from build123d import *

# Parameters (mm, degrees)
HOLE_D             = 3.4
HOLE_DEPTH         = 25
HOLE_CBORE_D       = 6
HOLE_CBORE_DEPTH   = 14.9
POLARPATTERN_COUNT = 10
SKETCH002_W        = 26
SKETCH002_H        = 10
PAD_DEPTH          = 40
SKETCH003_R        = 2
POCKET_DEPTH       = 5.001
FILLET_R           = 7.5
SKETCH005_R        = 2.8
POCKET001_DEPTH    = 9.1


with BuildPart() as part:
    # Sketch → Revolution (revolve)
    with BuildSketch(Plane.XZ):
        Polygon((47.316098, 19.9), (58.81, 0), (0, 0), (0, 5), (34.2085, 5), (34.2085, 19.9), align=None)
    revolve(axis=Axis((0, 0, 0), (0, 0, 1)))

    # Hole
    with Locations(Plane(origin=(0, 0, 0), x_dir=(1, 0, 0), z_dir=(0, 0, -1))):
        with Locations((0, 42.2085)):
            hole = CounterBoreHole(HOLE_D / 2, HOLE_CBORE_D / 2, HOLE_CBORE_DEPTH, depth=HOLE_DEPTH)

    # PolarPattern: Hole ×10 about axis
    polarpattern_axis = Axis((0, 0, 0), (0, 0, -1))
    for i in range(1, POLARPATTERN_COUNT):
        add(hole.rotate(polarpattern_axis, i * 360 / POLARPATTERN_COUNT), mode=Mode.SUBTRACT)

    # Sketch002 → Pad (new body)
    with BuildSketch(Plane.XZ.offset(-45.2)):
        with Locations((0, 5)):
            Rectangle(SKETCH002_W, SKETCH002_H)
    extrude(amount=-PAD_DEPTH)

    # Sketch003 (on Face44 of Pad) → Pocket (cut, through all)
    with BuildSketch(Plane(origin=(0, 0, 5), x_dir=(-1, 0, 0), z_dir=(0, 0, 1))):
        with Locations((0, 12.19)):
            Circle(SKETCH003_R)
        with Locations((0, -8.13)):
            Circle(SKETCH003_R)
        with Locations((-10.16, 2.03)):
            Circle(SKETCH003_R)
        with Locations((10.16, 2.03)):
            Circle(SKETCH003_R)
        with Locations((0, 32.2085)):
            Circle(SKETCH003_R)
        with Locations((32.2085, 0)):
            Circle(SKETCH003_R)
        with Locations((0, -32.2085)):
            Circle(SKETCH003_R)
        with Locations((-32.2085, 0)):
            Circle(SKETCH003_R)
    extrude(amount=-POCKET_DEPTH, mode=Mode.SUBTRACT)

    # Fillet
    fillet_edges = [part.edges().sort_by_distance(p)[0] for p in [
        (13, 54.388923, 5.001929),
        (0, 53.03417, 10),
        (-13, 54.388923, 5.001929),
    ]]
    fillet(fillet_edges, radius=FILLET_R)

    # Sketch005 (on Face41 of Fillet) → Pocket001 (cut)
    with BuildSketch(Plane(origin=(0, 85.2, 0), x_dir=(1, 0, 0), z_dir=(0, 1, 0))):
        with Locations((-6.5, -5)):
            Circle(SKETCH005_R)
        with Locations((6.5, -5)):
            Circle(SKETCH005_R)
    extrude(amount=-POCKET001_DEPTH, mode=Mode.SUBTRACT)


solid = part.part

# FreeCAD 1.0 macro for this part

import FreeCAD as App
import Part
import Sketcher
Q = App.Units.Quantity


def edges_at(feature, points):
    """Names of the edges that pass closest to the given points."""
    edges = feature.Shape.Edges
    near = lambda p: min(range(len(edges)), key=lambda i: edges[i].distToShape(Part.Vertex(*p))[0])
    return sorted({f"Edge{near(p) + 1}" for p in points})

doc = App.newDocument("Part")
params = doc.addObject("Spreadsheet::Sheet", "Params")
for row, (alias, value) in enumerate([
    ("sketch1_height", "5 mm"),
    ("sketch1_height2", "14.9 mm"),
    ("sketch1_width", "58.81 mm"),
    ("revolution_angle", "360 deg"),
    ("sketch2_diameter", "3.4 mm"),
    ("hole_diameter", "3.4 mm"),
    ("hole_depth", "25 mm"),
    ("hole_cbore_diameter", "6 mm"),
    ("hole_cbore_depth", "14.9 mm"),
    ("sketch3_width", "26 mm"),
    ("sketch3_height", "10 mm"),
    ("pad1_length", "40 mm"),
    ("sketch4_diameter", "4 mm"),
    ("fillet_radius", "7.5 mm"),
    ("sketch5_diameter", "5.6 mm"),
    ("pocket2_length", "9.1 mm"),
], start=1):
    params.set(f"A{row}", alias)
    params.set(f"B{row}", "=" + value)
    params.setAlias(f"B{row}", alias)

body = doc.addObject("PartDesign::Body", "Body")

# Sketch on XZ plane
sketch1 = body.newObject("Sketcher::SketchObject", "Sketch")
sketch1.AttachmentSupport = (doc.getObject("XZ_Plane"), [""])
sketch1.MapMode = "FlatFace"
sketch1.addGeometry(Part.LineSegment(App.Vector(59, 0, 0), App.Vector(47, 20, 0)), False)
sketch1.addGeometry(Part.LineSegment(App.Vector(47, 20, 0), App.Vector(34, 20, 0)), False)
sketch1.addGeometry(Part.LineSegment(App.Vector(34, 20, 0), App.Vector(34, 5, 0)), False)
sketch1.addGeometry(Part.LineSegment(App.Vector(34, 5, 0), App.Vector(0, 5, 0)), False)
sketch1.addGeometry(Part.LineSegment(App.Vector(0, 5, 0), App.Vector(0, 0, 0)), False)
sketch1.addGeometry(Part.LineSegment(App.Vector(0, 0, 0), App.Vector(59, 0, 0)), False)
sketch1.addConstraint(Sketcher.Constraint("Coincident", 0, 2, 1, 1))
sketch1.addConstraint(Sketcher.Constraint("Coincident", 1, 2, 2, 1))
sketch1.addConstraint(Sketcher.Constraint("Coincident", 2, 2, 3, 1))
sketch1.addConstraint(Sketcher.Constraint("Coincident", 3, 2, 4, 1))
sketch1.addConstraint(Sketcher.Constraint("Coincident", 4, 2, 5, 1))
sketch1.addConstraint(Sketcher.Constraint("Coincident", 5, 2, 0, 1))
sketch1.addConstraint(Sketcher.Constraint("Horizontal", 1))
sketch1.addConstraint(Sketcher.Constraint("Vertical", 2))
sketch1.addConstraint(Sketcher.Constraint("Horizontal", 3))
sketch1.addConstraint(Sketcher.Constraint("Vertical", 4))
sketch1.addConstraint(Sketcher.Constraint("Horizontal", 5))
sketch1.addConstraint(Sketcher.Constraint("Coincident", 4, 2, -1, 1))
sketch1.addConstraint(Sketcher.Constraint("DistanceY", 4, 2, 4, 1, Q("5 mm")))
sketch1.addConstraint(Sketcher.Constraint("DistanceY", 2, 2, 2, 1, Q("14.9 mm")))
sketch1.addConstraint(Sketcher.Constraint("DistanceX", 5, 1, 5, 2, Q("58.81 mm")))
sketch1.addConstraint(Sketcher.Constraint("Angle", 0, Q("120.010001 deg")))
sketch1.addConstraint(Sketcher.Constraint("DistanceX", 3, 2, 3, 1, Q("34.2085 mm")))
sketch1.setExpression("Constraints[12]", "Params.sketch1_height")
sketch1.setExpression("Constraints[13]", "Params.sketch1_height2")
sketch1.setExpression("Constraints[14]", "Params.sketch1_width")
revolution = body.newObject("PartDesign::Revolution", "Revolution")
revolution.Profile = sketch1
revolution.ReferenceAxis = (sketch1, ["V_Axis"])
revolution.setExpression("Angle", "Params.revolution_angle")

# Sketch on XY plane
sketch2 = body.newObject("Sketcher::SketchObject", "Sketch001")
sketch2.AttachmentSupport = (doc.getObject("XY_Plane"), [""])
sketch2.MapMode = "FlatFace"
sketch2.addGeometry(Part.Circle(App.Vector(0, -42.2, 0), App.Vector(0, 0, 1), 1.7), False)
sketch2.addConstraint(Sketcher.Constraint("PointOnObject", 0, 3, -2))
sketch2.addConstraint(Sketcher.Constraint("Diameter", 0, Q("3.4 mm")))
sketch2.addConstraint(Sketcher.Constraint("DistanceY", 0, 3, -1, 1, Q("42.2085 mm")))
sketch2.setExpression("Constraints[1]", "Params.sketch2_diameter")
doc.recompute()
hole = body.newObject("PartDesign::Hole", "Hole")
hole.Profile = sketch2
hole.ThreadType = "None"
hole.setExpression("Diameter", "Params.hole_diameter")
hole.DepthType = "Dimension"
hole.setExpression("Depth", "Params.hole_depth")
hole.DrillPoint = "Flat"
hole.HoleCutType = "Counterbore"
hole.setExpression("HoleCutDiameter", "Params.hole_cbore_diameter")
hole.setExpression("HoleCutDepth", "Params.hole_cbore_depth")
hole.Reversed = True
doc.recompute()

polarpattern = body.newObject("PartDesign::PolarPattern", "PolarPattern")
polarpattern.Originals = [hole]
polarpattern.Axis = (doc.getObject("Z_Axis"), [""])
polarpattern.Angle = 360
polarpattern.Occurrences = 10
body.Tip = polarpattern

# Sketch on XZ plane
sketch3 = body.newObject("Sketcher::SketchObject", "Sketch002")
sketch3.AttachmentSupport = (doc.getObject("XZ_Plane"), [""])
sketch3.MapMode = "FlatFace"
sketch3.AttachmentOffset = App.Placement(App.Vector(0, 0, -45.2), App.Rotation())
sketch3.addGeometry(Part.LineSegment(App.Vector(-13, 10, 0), App.Vector(-13, 0, 0)), False)
sketch3.addGeometry(Part.LineSegment(App.Vector(-13, 0, 0), App.Vector(13, 0, 0)), False)
sketch3.addGeometry(Part.LineSegment(App.Vector(13, 0, 0), App.Vector(13, 10, 0)), False)
sketch3.addGeometry(Part.LineSegment(App.Vector(13, 10, 0), App.Vector(-13, 10, 0)), False)
sketch3.addConstraint(Sketcher.Constraint("Coincident", 0, 2, 1, 1))
sketch3.addConstraint(Sketcher.Constraint("Coincident", 1, 2, 2, 1))
sketch3.addConstraint(Sketcher.Constraint("Coincident", 2, 2, 3, 1))
sketch3.addConstraint(Sketcher.Constraint("Coincident", 3, 2, 0, 1))
sketch3.addConstraint(Sketcher.Constraint("Vertical", 0))
sketch3.addConstraint(Sketcher.Constraint("Horizontal", 1))
sketch3.addConstraint(Sketcher.Constraint("Vertical", 2))
sketch3.addConstraint(Sketcher.Constraint("Horizontal", 3))
sketch3.addConstraint(Sketcher.Constraint("Symmetric", 0, 2, 1, 2, -1, 1))
sketch3.addConstraint(Sketcher.Constraint("DistanceX", 1, 1, 1, 2, Q("26 mm")))
sketch3.addConstraint(Sketcher.Constraint("DistanceY", 0, 2, 0, 1, Q("10 mm")))
sketch3.setExpression("Constraints[9]", "Params.sketch3_width")
sketch3.setExpression("Constraints[10]", "Params.sketch3_height")
pad1 = body.newObject("PartDesign::Pad", "Pad")
pad1.Profile = sketch3
pad1.setExpression("Length", "Params.pad1_length")
pad1.Reversed = True

# Sketch on XY plane
sketch4 = body.newObject("Sketcher::SketchObject", "Sketch003")
sketch4.AttachmentSupport = (doc.getObject("XY_Plane"), [""])
sketch4.MapMode = "FlatFace"
sketch4.AttachmentOffset = App.Placement(App.Vector(0, 0, 5), App.Rotation())
sketch4.addGeometry(Part.Circle(App.Vector(0, -12.2, 0), App.Vector(0, 0, 1), 2), False)
sketch4.addGeometry(Part.Circle(App.Vector(0, 8.1, 0), App.Vector(0, 0, 1), 2), False)
sketch4.addGeometry(Part.Circle(App.Vector(10.2, -2, 0), App.Vector(0, 0, 1), 2), False)
sketch4.addGeometry(Part.Circle(App.Vector(-10.2, -2, 0), App.Vector(0, 0, 1), 2), False)
sketch4.addGeometry(Part.Circle(App.Vector(0, -32.2, 0), App.Vector(0, 0, 1), 2), False)
sketch4.addGeometry(Part.Circle(App.Vector(-32.2, 0, 0), App.Vector(0, 0, 1), 2), False)
sketch4.addGeometry(Part.Circle(App.Vector(0, 32.2, 0), App.Vector(0, 0, 1), 2), False)
sketch4.addGeometry(Part.Circle(App.Vector(32.2, 0, 0), App.Vector(0, 0, 1), 2), False)
sketch4.addConstraint(Sketcher.Constraint("Equal", 0, 1))
sketch4.addConstraint(Sketcher.Constraint("Equal", 1, 2))
sketch4.addConstraint(Sketcher.Constraint("Equal", 2, 3))
sketch4.addConstraint(Sketcher.Constraint("Equal", 3, 4))
sketch4.addConstraint(Sketcher.Constraint("Equal", 4, 5))
sketch4.addConstraint(Sketcher.Constraint("Equal", 5, 6))
sketch4.addConstraint(Sketcher.Constraint("Equal", 6, 7))
sketch4.addConstraint(Sketcher.Constraint("Symmetric", 4, 3, 6, 3, -1, 1))
sketch4.addConstraint(Sketcher.Constraint("Symmetric", 5, 3, 7, 3, -1, 1))
sketch4.addConstraint(Sketcher.Constraint("Symmetric", 2, 3, 3, 3, -2))
sketch4.addConstraint(Sketcher.Constraint("PointOnObject", 0, 3, -2))
sketch4.addConstraint(Sketcher.Constraint("PointOnObject", 1, 3, -2))
sketch4.addConstraint(Sketcher.Constraint("PointOnObject", 4, 3, -2))
sketch4.addConstraint(Sketcher.Constraint("PointOnObject", 5, 3, -1))
sketch4.addConstraint(Sketcher.Constraint("Diameter", 0, Q("4 mm")))
sketch4.addConstraint(Sketcher.Constraint("DistanceY", 0, 3, -1, 1, Q("12.19 mm")))
sketch4.addConstraint(Sketcher.Constraint("DistanceY", -1, 1, 1, 3, Q("8.13 mm")))
sketch4.addConstraint(Sketcher.Constraint("DistanceX", -1, 1, 2, 3, Q("10.16 mm")))
sketch4.addConstraint(Sketcher.Constraint("DistanceY", 2, 3, -1, 1, Q("2.03 mm")))
sketch4.addConstraint(Sketcher.Constraint("DistanceY", 4, 3, -1, 1, Q("32.2085 mm")))
sketch4.addConstraint(Sketcher.Constraint("DistanceX", 5, 3, -1, 1, Q("32.2085 mm")))
sketch4.setExpression("Constraints[14]", "Params.sketch4_diameter")
pocket1 = body.newObject("PartDesign::Pocket", "Pocket")
pocket1.Profile = sketch4
pocket1.Type = "ThroughAll"
doc.recompute()

fillet = body.newObject("PartDesign::Fillet", "Fillet")
fillet.Base = (pocket1, edges_at(pocket1, [(13, 54.389, 5.002), (0, 53.034, 10), (-13, 54.389, 5.002)]))
fillet.setExpression("Radius", "Params.fillet_radius")

# Sketch on XZ plane
sketch5 = body.newObject("Sketcher::SketchObject", "Sketch004")
sketch5.AttachmentSupport = (doc.getObject("XZ_Plane"), [""])
sketch5.MapMode = "FlatFace"
sketch5.AttachmentOffset = App.Placement(App.Vector(0, 0, -85.2), App.Rotation())
sketch5.addGeometry(Part.Circle(App.Vector(-6.5, 5, 0), App.Vector(0, 0, 1), 2.8), False)
sketch5.addGeometry(Part.Circle(App.Vector(6.5, 5, 0), App.Vector(0, 0, 1), 2.8), False)
sketch5.addConstraint(Sketcher.Constraint("Equal", 0, 1))
sketch5.addConstraint(Sketcher.Constraint("Symmetric", 0, 3, 1, 3, -2))
sketch5.addConstraint(Sketcher.Constraint("Diameter", 0, Q("5.6 mm")))
sketch5.addConstraint(Sketcher.Constraint("DistanceY", -1, 1, 0, 3, Q("5 mm")))
sketch5.addConstraint(Sketcher.Constraint("DistanceX", 0, 3, 1, 3, Q("13 mm")))
sketch5.setExpression("Constraints[2]", "Params.sketch5_diameter")
pocket2 = body.newObject("PartDesign::Pocket", "Pocket001")
pocket2.Profile = sketch5
pocket2.setExpression("Length", "Params.pocket2_length")
pocket2.Reversed = True

doc.recompute()
